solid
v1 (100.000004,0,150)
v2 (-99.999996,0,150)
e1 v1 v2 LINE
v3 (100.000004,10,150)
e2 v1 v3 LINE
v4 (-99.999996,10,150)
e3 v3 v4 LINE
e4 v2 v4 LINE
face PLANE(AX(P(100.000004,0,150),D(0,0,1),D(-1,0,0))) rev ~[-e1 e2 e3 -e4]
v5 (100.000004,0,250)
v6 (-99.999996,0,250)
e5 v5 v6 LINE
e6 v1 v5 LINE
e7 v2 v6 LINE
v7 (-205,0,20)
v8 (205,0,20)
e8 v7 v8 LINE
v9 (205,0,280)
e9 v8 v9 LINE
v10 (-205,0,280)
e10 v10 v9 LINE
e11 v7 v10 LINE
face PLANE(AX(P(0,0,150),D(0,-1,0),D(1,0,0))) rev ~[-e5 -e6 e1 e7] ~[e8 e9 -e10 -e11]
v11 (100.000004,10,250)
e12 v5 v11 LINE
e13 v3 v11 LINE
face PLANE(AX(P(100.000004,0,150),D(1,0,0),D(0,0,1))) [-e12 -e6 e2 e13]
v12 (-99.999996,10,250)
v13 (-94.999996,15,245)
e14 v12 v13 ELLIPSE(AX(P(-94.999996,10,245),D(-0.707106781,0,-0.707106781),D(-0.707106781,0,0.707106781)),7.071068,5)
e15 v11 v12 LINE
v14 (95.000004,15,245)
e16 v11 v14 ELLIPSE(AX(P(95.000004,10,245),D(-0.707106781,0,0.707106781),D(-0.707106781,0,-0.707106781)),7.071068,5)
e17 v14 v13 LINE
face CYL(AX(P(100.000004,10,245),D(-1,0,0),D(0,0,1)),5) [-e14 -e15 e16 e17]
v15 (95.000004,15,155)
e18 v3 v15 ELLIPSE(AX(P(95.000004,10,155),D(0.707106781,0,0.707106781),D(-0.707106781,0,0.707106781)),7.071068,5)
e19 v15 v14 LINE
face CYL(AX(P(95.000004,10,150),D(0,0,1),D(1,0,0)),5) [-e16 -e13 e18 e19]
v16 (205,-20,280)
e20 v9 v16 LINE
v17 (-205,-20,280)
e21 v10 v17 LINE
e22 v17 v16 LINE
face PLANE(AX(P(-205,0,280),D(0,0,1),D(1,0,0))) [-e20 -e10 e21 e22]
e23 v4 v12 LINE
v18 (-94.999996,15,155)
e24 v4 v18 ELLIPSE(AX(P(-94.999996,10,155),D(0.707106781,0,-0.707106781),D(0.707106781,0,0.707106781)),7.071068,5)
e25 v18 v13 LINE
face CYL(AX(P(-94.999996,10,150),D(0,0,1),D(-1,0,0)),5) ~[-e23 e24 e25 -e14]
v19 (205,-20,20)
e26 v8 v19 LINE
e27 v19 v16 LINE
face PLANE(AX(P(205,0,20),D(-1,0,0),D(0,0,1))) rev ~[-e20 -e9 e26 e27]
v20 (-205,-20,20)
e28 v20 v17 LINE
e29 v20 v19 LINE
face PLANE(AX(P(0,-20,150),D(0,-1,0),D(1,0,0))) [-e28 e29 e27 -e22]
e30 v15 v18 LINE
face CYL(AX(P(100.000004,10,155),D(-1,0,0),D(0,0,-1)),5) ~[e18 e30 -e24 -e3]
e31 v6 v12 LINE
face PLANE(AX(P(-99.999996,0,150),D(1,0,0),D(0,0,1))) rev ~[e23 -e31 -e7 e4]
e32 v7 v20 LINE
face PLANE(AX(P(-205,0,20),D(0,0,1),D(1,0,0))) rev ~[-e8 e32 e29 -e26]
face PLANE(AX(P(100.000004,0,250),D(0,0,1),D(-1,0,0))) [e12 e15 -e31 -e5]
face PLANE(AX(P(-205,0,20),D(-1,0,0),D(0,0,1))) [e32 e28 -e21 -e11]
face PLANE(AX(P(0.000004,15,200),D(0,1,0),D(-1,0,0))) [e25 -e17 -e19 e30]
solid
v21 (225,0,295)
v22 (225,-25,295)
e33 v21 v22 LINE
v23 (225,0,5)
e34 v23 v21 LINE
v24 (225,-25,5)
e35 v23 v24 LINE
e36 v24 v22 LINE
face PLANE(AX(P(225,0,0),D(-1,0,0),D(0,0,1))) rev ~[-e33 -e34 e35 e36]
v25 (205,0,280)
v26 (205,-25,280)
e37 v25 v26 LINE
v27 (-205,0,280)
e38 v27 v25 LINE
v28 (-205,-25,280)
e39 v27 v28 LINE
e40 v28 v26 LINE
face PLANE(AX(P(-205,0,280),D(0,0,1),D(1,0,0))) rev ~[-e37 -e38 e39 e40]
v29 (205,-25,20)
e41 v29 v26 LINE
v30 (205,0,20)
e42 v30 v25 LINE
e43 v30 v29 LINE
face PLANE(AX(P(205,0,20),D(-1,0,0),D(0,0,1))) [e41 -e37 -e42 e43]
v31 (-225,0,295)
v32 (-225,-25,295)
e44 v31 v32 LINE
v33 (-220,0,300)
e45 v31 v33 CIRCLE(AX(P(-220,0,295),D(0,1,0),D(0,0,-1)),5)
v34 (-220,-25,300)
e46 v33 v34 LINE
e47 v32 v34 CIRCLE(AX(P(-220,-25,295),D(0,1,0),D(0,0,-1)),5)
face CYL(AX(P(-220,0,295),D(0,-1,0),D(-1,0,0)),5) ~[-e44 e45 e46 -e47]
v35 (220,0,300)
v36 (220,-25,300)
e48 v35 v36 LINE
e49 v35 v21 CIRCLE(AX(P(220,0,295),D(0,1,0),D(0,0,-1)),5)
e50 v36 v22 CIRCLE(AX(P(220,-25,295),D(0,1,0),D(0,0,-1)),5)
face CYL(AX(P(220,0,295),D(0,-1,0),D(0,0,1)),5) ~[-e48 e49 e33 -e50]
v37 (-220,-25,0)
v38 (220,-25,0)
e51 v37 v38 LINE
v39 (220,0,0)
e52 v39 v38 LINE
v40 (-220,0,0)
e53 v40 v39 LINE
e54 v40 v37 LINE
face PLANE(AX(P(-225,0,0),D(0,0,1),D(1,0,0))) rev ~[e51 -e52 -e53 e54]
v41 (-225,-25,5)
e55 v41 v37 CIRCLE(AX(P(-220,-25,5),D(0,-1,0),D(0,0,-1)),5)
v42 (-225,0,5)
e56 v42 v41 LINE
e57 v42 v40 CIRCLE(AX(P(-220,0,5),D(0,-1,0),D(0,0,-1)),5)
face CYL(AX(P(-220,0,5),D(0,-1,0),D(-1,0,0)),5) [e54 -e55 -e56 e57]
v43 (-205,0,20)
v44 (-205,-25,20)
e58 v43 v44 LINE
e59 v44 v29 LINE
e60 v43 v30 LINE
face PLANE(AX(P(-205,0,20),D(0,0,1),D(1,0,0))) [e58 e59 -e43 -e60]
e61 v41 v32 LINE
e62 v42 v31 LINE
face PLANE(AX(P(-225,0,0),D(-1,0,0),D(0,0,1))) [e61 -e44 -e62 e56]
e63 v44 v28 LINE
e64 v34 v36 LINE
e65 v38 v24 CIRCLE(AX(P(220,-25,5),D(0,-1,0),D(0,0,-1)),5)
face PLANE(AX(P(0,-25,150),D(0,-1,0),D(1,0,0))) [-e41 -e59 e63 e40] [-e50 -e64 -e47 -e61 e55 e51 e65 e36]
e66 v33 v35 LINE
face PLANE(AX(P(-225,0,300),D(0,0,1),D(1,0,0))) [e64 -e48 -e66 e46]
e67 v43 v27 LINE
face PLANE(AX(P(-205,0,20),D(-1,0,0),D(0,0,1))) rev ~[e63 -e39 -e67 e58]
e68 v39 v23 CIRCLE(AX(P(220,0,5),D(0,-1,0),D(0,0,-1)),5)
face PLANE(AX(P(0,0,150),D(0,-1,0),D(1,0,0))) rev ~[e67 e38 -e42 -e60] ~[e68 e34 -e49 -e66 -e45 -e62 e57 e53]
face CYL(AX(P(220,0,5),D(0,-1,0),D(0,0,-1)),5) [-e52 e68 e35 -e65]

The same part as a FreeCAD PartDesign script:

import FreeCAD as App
import Part
import Sketcher
Q = App.Units.Quantity


def edges_at(feature, points):
    """Names of the edges that pass closest to the given points."""
    edges = feature.Shape.Edges
    near = lambda p: min(range(len(edges)), key=lambda i: edges[i].distToShape(Part.Vertex(*p))[0])
    return sorted({f"Edge{near(p) + 1}" for p in points})

doc = App.newDocument("Part")
body = doc.addObject("PartDesign::Body", "Body")

sketch1 = body.newObject("Sketcher::SketchObject", "Sketch")
sketch1.AttachmentSupport = (doc.getObject("XZ_Plane"), [""])
sketch1.MapMode = "FlatFace"
sketch1.addGeometry([
    Part.LineSegment(App.Vector(-205, 280, 0), App.Vector(-205, 20, 0)),
    Part.LineSegment(App.Vector(-205, 20, 0), App.Vector(205, 20, 0)),
    Part.LineSegment(App.Vector(205, 20, 0), App.Vector(205, 280, 0)),
    Part.LineSegment(App.Vector(205, 280, 0), App.Vector(-205, 280, 0)),
], False)
sketch1.addConstraint([
    Sketcher.Constraint("Coincident", 0, 2, 1, 1),
    Sketcher.Constraint("Coincident", 1, 2, 2, 1),
    Sketcher.Constraint("Coincident", 2, 2, 3, 1),
    Sketcher.Constraint("Coincident", 3, 2, 0, 1),
    Sketcher.Constraint("Vertical", 0),
    Sketcher.Constraint("Horizontal", 1),
    Sketcher.Constraint("Vertical", 2),
    Sketcher.Constraint("Horizontal", 3),
    Sketcher.Constraint("DistanceX", 1, 1, 1, 2, Q("410 mm")),
    Sketcher.Constraint("DistanceY", 0, 2, 0, 1, Q("260 mm")),
    Sketcher.Constraint("DistanceX", 0, 2, -1, 1, Q("205 mm")),
    Sketcher.Constraint("DistanceY", -1, 1, 0, 2, Q("20 mm")),
])
pad1 = body.newObject("PartDesign::Pad", "Pad")
pad1.Profile = sketch1
pad1.Length = 20

sketch2 = body.newObject("Sketcher::SketchObject", "Sketch001")
sketch2.AttachmentSupport = (doc.getObject("XZ_Plane"), [""])
sketch2.MapMode = "FlatFace"
sketch2.addGeometry([
    Part.LineSegment(App.Vector(100, 250, 0), App.Vector(100, 150, 0)),
    Part.LineSegment(App.Vector(100, 150, 0), App.Vector(-100, 150, 0)),
    Part.LineSegment(App.Vector(-100, 150, 0), App.Vector(-100, 250, 0)),
    Part.LineSegment(App.Vector(-100, 250, 0), App.Vector(100, 250, 0)),
], False)
sketch2.addConstraint([
    Sketcher.Constraint("Coincident", 0, 2, 1, 1),
    Sketcher.Constraint("Coincident", 1, 2, 2, 1),
    Sketcher.Constraint("Coincident", 2, 2, 3, 1),
    Sketcher.Constraint("Coincident", 3, 2, 0, 1),
    Sketcher.Constraint("Vertical", 0),
    Sketcher.Constraint("Horizontal", 1),
    Sketcher.Constraint("Vertical", 2),
    Sketcher.Constraint("Horizontal", 3),
    Sketcher.Constraint("DistanceX", 1, 2, 1, 1, Q("200 mm")),
    Sketcher.Constraint("DistanceY", 0, 2, 0, 1, Q("100 mm")),
    Sketcher.Constraint("DistanceY", -1, 1, 0, 2, Q("150 mm")),
    Sketcher.Constraint("DistanceX", -1, 1, 0, 2, Q("100.000004 mm")),
])
pad2 = body.newObject("PartDesign::Pad", "Pad001")
pad2.Profile = sketch2
pad2.Length = 15
pad2.Reversed = True
doc.recompute()

fillet = body.newObject("PartDesign::Fillet", "Fillet")
fillet.Base = (pad2, edges_at(pad2, [
    (-100, 15, 200),
    (0, 15, 250),
    (100, 15, 200),
    (0, 15, 150),
]))
fillet.Radius = 5
body2 = doc.addObject("PartDesign::Body", "Body001")

sketch3 = body2.newObject("Sketcher::SketchObject", "Sketch002")
sketch3.AttachmentSupport = (doc.getObject("XZ_Plane001"), [""])
sketch3.MapMode = "FlatFace"
sketch3.addGeometry([
    Part.LineSegment(App.Vector(-225, 300, 0), App.Vector(-225, 0, 0)),
    Part.LineSegment(App.Vector(-225, 0, 0), App.Vector(225, 0, 0)),
    Part.LineSegment(App.Vector(225, 0, 0), App.Vector(225, 300, 0)),
    Part.LineSegment(App.Vector(225, 300, 0), App.Vector(-225, 300, 0)),
    Part.LineSegment(App.Vector(205, 20, 0), App.Vector(-205, 20, 0)),
    Part.LineSegment(App.Vector(-205, 20, 0), App.Vector(-205, 280, 0)),
    Part.LineSegment(App.Vector(-205, 280, 0), App.Vector(205, 280, 0)),
    Part.LineSegment(App.Vector(205, 280, 0), App.Vector(205, 20, 0)),
], False)
sketch3.addConstraint([
    Sketcher.Constraint("Coincident", 0, 2, 1, 1),
    Sketcher.Constraint("Coincident", 1, 2, 2, 1),
    Sketcher.Constraint("Coincident", 2, 2, 3, 1),
    Sketcher.Constraint("Coincident", 3, 2, 0, 1),
    Sketcher.Constraint("Coincident", 4, 2, 5, 1),
    Sketcher.Constraint("Coincident", 5, 2, 6, 1),
    Sketcher.Constraint("Coincident", 6, 2, 7, 1),
    Sketcher.Constraint("Coincident", 7, 2, 4, 1),
    Sketcher.Constraint("Vertical", 0),
    Sketcher.Constraint("Horizontal", 1),
    Sketcher.Constraint("Vertical", 2),
    Sketcher.Constraint("Horizontal", 3),
    Sketcher.Constraint("Horizontal", 4),
    Sketcher.Constraint("Vertical", 5),
    Sketcher.Constraint("Horizontal", 6),
    Sketcher.Constraint("Vertical", 7),
    Sketcher.Constraint("Symmetric", 0, 2, 1, 2, -1, 1),
    Sketcher.Constraint("DistanceX", 1, 1, 1, 2, Q("450 mm")),
    Sketcher.Constraint("DistanceX", 4, 2, 4, 1, Q("410 mm")),
    Sketcher.Constraint("DistanceY", 0, 2, 0, 1, Q("300 mm")),
    Sketcher.Constraint("DistanceY", 5, 1, 5, 2, Q("260 mm")),
    Sketcher.Constraint("DistanceX", 4, 2, -1, 1, Q("205 mm")),
    Sketcher.Constraint("DistanceY", -1, 1, 4, 2, Q("20 mm")),
])
pad3 = body2.newObject("PartDesign::Pad", "Pad002")
pad3.Profile = sketch3
pad3.Length = 25
doc.recompute()

fillet2 = body2.newObject("PartDesign::Fillet", "Fillet001")
fillet2.Base = (pad3, edges_at(pad3, [
    (-225, -12.5, 300),
    (225, -12.5, 300),
    (225, -12.5, 0),
    (-225, -12.5, 0),
]))
fillet2.Radius = 5

doc.recompute()
